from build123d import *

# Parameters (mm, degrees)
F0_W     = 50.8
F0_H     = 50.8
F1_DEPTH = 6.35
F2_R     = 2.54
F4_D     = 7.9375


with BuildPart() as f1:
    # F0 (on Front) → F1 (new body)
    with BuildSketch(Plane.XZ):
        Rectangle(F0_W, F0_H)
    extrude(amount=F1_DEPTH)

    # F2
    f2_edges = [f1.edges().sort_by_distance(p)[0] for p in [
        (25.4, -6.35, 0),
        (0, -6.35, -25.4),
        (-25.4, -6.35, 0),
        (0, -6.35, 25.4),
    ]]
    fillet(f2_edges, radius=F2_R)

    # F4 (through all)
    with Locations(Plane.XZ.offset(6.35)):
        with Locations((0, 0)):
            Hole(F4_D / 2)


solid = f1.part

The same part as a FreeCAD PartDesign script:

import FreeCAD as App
import Part
import Sketcher

V = App.Vector
Q = App.Units.Quantity


def edges_at(feature, points):
    """Names of the edges that pass closest to the given points."""
    edges = feature.Shape.Edges
    near = lambda p: min(range(len(edges)), key=lambda i: edges[i].distToShape(Part.Vertex(*p))[0])
    return sorted({f"Edge{near(p) + 1}" for p in points})

doc = App.newDocument("Part")
body = doc.addObject("PartDesign::Body", "Body")

sketch1 = body.newObject("Sketcher::SketchObject", "Sketch")
sketch1.AttachmentSupport = (doc.getObject("XZ_Plane"), [""])
sketch1.MapMode = "FlatFace"
sketch1.addGeometry([
    Part.LineSegment(V(-25, 25, 0), V(-25, -25, 0)),
    Part.LineSegment(V(-25, -25, 0), V(25, -25, 0)),
    Part.LineSegment(V(25, -25, 0), V(25, 25, 0)),
    Part.LineSegment(V(25, 25, 0), V(-25, 25, 0)),
], False)
sketch1.addConstraint([
    Sketcher.Constraint("Coincident", 0, 2, 1, 1),
    Sketcher.Constraint("Coincident", 1, 2, 2, 1),
    Sketcher.Constraint("Coincident", 2, 2, 3, 1),
    Sketcher.Constraint("Coincident", 3, 2, 0, 1),
    Sketcher.Constraint("Vertical", 0),
    Sketcher.Constraint("Horizontal", 1),
    Sketcher.Constraint("Vertical", 2),
    Sketcher.Constraint("Horizontal", 3),
    Sketcher.Constraint("Symmetric", 0, 2, 2, 2, -1, 1),
    Sketcher.Constraint("Equal", 3, 0),
    Sketcher.Constraint("DistanceX", 1, 1, 1, 2, Q("2 in")),
])
pad1 = body.newObject("PartDesign::Pad", "Pad")
pad1.Profile = sketch1
pad1.Length = Q("0.25 in")
doc.recompute()

fillet = body.newObject("PartDesign::Fillet", "Fillet")
fillet.Base = (pad1, edges_at(pad1, [
    (25.4, -6.35, 0),
    (0, -6.35, -25.4),
    (-25.4, -6.35, 0),
    (0, -6.35, 25.4),
]))
fillet.Radius = Q("0.1 in")

sketch2 = body.newObject("Sketcher::SketchObject", "Sketch001")
sketch2.AttachmentSupport = (doc.getObject("XZ_Plane"), [""])
sketch2.MapMode = "FlatFace"
sketch2.AttachmentOffset = App.Placement(V(0, 0, 0.25 * 25.4), App.Rotation())
sketch2.addGeometry(Part.Circle(V(0, 0, 0), V(0, 0, 1), 4), False)
sketch2.addConstraint([
    Sketcher.Constraint("Coincident", 0, 3, -1, 1),
    Sketcher.Constraint("Diameter", 0, Q("0.3125 in")),
])
doc.recompute()
hole = body.newObject("PartDesign::Hole", "Hole")
hole.Profile = sketch2
hole.ThreadType = "None"
hole.Diameter = Q("0.3125 in")
hole.DepthType = "ThroughAll"

doc.recompute()
